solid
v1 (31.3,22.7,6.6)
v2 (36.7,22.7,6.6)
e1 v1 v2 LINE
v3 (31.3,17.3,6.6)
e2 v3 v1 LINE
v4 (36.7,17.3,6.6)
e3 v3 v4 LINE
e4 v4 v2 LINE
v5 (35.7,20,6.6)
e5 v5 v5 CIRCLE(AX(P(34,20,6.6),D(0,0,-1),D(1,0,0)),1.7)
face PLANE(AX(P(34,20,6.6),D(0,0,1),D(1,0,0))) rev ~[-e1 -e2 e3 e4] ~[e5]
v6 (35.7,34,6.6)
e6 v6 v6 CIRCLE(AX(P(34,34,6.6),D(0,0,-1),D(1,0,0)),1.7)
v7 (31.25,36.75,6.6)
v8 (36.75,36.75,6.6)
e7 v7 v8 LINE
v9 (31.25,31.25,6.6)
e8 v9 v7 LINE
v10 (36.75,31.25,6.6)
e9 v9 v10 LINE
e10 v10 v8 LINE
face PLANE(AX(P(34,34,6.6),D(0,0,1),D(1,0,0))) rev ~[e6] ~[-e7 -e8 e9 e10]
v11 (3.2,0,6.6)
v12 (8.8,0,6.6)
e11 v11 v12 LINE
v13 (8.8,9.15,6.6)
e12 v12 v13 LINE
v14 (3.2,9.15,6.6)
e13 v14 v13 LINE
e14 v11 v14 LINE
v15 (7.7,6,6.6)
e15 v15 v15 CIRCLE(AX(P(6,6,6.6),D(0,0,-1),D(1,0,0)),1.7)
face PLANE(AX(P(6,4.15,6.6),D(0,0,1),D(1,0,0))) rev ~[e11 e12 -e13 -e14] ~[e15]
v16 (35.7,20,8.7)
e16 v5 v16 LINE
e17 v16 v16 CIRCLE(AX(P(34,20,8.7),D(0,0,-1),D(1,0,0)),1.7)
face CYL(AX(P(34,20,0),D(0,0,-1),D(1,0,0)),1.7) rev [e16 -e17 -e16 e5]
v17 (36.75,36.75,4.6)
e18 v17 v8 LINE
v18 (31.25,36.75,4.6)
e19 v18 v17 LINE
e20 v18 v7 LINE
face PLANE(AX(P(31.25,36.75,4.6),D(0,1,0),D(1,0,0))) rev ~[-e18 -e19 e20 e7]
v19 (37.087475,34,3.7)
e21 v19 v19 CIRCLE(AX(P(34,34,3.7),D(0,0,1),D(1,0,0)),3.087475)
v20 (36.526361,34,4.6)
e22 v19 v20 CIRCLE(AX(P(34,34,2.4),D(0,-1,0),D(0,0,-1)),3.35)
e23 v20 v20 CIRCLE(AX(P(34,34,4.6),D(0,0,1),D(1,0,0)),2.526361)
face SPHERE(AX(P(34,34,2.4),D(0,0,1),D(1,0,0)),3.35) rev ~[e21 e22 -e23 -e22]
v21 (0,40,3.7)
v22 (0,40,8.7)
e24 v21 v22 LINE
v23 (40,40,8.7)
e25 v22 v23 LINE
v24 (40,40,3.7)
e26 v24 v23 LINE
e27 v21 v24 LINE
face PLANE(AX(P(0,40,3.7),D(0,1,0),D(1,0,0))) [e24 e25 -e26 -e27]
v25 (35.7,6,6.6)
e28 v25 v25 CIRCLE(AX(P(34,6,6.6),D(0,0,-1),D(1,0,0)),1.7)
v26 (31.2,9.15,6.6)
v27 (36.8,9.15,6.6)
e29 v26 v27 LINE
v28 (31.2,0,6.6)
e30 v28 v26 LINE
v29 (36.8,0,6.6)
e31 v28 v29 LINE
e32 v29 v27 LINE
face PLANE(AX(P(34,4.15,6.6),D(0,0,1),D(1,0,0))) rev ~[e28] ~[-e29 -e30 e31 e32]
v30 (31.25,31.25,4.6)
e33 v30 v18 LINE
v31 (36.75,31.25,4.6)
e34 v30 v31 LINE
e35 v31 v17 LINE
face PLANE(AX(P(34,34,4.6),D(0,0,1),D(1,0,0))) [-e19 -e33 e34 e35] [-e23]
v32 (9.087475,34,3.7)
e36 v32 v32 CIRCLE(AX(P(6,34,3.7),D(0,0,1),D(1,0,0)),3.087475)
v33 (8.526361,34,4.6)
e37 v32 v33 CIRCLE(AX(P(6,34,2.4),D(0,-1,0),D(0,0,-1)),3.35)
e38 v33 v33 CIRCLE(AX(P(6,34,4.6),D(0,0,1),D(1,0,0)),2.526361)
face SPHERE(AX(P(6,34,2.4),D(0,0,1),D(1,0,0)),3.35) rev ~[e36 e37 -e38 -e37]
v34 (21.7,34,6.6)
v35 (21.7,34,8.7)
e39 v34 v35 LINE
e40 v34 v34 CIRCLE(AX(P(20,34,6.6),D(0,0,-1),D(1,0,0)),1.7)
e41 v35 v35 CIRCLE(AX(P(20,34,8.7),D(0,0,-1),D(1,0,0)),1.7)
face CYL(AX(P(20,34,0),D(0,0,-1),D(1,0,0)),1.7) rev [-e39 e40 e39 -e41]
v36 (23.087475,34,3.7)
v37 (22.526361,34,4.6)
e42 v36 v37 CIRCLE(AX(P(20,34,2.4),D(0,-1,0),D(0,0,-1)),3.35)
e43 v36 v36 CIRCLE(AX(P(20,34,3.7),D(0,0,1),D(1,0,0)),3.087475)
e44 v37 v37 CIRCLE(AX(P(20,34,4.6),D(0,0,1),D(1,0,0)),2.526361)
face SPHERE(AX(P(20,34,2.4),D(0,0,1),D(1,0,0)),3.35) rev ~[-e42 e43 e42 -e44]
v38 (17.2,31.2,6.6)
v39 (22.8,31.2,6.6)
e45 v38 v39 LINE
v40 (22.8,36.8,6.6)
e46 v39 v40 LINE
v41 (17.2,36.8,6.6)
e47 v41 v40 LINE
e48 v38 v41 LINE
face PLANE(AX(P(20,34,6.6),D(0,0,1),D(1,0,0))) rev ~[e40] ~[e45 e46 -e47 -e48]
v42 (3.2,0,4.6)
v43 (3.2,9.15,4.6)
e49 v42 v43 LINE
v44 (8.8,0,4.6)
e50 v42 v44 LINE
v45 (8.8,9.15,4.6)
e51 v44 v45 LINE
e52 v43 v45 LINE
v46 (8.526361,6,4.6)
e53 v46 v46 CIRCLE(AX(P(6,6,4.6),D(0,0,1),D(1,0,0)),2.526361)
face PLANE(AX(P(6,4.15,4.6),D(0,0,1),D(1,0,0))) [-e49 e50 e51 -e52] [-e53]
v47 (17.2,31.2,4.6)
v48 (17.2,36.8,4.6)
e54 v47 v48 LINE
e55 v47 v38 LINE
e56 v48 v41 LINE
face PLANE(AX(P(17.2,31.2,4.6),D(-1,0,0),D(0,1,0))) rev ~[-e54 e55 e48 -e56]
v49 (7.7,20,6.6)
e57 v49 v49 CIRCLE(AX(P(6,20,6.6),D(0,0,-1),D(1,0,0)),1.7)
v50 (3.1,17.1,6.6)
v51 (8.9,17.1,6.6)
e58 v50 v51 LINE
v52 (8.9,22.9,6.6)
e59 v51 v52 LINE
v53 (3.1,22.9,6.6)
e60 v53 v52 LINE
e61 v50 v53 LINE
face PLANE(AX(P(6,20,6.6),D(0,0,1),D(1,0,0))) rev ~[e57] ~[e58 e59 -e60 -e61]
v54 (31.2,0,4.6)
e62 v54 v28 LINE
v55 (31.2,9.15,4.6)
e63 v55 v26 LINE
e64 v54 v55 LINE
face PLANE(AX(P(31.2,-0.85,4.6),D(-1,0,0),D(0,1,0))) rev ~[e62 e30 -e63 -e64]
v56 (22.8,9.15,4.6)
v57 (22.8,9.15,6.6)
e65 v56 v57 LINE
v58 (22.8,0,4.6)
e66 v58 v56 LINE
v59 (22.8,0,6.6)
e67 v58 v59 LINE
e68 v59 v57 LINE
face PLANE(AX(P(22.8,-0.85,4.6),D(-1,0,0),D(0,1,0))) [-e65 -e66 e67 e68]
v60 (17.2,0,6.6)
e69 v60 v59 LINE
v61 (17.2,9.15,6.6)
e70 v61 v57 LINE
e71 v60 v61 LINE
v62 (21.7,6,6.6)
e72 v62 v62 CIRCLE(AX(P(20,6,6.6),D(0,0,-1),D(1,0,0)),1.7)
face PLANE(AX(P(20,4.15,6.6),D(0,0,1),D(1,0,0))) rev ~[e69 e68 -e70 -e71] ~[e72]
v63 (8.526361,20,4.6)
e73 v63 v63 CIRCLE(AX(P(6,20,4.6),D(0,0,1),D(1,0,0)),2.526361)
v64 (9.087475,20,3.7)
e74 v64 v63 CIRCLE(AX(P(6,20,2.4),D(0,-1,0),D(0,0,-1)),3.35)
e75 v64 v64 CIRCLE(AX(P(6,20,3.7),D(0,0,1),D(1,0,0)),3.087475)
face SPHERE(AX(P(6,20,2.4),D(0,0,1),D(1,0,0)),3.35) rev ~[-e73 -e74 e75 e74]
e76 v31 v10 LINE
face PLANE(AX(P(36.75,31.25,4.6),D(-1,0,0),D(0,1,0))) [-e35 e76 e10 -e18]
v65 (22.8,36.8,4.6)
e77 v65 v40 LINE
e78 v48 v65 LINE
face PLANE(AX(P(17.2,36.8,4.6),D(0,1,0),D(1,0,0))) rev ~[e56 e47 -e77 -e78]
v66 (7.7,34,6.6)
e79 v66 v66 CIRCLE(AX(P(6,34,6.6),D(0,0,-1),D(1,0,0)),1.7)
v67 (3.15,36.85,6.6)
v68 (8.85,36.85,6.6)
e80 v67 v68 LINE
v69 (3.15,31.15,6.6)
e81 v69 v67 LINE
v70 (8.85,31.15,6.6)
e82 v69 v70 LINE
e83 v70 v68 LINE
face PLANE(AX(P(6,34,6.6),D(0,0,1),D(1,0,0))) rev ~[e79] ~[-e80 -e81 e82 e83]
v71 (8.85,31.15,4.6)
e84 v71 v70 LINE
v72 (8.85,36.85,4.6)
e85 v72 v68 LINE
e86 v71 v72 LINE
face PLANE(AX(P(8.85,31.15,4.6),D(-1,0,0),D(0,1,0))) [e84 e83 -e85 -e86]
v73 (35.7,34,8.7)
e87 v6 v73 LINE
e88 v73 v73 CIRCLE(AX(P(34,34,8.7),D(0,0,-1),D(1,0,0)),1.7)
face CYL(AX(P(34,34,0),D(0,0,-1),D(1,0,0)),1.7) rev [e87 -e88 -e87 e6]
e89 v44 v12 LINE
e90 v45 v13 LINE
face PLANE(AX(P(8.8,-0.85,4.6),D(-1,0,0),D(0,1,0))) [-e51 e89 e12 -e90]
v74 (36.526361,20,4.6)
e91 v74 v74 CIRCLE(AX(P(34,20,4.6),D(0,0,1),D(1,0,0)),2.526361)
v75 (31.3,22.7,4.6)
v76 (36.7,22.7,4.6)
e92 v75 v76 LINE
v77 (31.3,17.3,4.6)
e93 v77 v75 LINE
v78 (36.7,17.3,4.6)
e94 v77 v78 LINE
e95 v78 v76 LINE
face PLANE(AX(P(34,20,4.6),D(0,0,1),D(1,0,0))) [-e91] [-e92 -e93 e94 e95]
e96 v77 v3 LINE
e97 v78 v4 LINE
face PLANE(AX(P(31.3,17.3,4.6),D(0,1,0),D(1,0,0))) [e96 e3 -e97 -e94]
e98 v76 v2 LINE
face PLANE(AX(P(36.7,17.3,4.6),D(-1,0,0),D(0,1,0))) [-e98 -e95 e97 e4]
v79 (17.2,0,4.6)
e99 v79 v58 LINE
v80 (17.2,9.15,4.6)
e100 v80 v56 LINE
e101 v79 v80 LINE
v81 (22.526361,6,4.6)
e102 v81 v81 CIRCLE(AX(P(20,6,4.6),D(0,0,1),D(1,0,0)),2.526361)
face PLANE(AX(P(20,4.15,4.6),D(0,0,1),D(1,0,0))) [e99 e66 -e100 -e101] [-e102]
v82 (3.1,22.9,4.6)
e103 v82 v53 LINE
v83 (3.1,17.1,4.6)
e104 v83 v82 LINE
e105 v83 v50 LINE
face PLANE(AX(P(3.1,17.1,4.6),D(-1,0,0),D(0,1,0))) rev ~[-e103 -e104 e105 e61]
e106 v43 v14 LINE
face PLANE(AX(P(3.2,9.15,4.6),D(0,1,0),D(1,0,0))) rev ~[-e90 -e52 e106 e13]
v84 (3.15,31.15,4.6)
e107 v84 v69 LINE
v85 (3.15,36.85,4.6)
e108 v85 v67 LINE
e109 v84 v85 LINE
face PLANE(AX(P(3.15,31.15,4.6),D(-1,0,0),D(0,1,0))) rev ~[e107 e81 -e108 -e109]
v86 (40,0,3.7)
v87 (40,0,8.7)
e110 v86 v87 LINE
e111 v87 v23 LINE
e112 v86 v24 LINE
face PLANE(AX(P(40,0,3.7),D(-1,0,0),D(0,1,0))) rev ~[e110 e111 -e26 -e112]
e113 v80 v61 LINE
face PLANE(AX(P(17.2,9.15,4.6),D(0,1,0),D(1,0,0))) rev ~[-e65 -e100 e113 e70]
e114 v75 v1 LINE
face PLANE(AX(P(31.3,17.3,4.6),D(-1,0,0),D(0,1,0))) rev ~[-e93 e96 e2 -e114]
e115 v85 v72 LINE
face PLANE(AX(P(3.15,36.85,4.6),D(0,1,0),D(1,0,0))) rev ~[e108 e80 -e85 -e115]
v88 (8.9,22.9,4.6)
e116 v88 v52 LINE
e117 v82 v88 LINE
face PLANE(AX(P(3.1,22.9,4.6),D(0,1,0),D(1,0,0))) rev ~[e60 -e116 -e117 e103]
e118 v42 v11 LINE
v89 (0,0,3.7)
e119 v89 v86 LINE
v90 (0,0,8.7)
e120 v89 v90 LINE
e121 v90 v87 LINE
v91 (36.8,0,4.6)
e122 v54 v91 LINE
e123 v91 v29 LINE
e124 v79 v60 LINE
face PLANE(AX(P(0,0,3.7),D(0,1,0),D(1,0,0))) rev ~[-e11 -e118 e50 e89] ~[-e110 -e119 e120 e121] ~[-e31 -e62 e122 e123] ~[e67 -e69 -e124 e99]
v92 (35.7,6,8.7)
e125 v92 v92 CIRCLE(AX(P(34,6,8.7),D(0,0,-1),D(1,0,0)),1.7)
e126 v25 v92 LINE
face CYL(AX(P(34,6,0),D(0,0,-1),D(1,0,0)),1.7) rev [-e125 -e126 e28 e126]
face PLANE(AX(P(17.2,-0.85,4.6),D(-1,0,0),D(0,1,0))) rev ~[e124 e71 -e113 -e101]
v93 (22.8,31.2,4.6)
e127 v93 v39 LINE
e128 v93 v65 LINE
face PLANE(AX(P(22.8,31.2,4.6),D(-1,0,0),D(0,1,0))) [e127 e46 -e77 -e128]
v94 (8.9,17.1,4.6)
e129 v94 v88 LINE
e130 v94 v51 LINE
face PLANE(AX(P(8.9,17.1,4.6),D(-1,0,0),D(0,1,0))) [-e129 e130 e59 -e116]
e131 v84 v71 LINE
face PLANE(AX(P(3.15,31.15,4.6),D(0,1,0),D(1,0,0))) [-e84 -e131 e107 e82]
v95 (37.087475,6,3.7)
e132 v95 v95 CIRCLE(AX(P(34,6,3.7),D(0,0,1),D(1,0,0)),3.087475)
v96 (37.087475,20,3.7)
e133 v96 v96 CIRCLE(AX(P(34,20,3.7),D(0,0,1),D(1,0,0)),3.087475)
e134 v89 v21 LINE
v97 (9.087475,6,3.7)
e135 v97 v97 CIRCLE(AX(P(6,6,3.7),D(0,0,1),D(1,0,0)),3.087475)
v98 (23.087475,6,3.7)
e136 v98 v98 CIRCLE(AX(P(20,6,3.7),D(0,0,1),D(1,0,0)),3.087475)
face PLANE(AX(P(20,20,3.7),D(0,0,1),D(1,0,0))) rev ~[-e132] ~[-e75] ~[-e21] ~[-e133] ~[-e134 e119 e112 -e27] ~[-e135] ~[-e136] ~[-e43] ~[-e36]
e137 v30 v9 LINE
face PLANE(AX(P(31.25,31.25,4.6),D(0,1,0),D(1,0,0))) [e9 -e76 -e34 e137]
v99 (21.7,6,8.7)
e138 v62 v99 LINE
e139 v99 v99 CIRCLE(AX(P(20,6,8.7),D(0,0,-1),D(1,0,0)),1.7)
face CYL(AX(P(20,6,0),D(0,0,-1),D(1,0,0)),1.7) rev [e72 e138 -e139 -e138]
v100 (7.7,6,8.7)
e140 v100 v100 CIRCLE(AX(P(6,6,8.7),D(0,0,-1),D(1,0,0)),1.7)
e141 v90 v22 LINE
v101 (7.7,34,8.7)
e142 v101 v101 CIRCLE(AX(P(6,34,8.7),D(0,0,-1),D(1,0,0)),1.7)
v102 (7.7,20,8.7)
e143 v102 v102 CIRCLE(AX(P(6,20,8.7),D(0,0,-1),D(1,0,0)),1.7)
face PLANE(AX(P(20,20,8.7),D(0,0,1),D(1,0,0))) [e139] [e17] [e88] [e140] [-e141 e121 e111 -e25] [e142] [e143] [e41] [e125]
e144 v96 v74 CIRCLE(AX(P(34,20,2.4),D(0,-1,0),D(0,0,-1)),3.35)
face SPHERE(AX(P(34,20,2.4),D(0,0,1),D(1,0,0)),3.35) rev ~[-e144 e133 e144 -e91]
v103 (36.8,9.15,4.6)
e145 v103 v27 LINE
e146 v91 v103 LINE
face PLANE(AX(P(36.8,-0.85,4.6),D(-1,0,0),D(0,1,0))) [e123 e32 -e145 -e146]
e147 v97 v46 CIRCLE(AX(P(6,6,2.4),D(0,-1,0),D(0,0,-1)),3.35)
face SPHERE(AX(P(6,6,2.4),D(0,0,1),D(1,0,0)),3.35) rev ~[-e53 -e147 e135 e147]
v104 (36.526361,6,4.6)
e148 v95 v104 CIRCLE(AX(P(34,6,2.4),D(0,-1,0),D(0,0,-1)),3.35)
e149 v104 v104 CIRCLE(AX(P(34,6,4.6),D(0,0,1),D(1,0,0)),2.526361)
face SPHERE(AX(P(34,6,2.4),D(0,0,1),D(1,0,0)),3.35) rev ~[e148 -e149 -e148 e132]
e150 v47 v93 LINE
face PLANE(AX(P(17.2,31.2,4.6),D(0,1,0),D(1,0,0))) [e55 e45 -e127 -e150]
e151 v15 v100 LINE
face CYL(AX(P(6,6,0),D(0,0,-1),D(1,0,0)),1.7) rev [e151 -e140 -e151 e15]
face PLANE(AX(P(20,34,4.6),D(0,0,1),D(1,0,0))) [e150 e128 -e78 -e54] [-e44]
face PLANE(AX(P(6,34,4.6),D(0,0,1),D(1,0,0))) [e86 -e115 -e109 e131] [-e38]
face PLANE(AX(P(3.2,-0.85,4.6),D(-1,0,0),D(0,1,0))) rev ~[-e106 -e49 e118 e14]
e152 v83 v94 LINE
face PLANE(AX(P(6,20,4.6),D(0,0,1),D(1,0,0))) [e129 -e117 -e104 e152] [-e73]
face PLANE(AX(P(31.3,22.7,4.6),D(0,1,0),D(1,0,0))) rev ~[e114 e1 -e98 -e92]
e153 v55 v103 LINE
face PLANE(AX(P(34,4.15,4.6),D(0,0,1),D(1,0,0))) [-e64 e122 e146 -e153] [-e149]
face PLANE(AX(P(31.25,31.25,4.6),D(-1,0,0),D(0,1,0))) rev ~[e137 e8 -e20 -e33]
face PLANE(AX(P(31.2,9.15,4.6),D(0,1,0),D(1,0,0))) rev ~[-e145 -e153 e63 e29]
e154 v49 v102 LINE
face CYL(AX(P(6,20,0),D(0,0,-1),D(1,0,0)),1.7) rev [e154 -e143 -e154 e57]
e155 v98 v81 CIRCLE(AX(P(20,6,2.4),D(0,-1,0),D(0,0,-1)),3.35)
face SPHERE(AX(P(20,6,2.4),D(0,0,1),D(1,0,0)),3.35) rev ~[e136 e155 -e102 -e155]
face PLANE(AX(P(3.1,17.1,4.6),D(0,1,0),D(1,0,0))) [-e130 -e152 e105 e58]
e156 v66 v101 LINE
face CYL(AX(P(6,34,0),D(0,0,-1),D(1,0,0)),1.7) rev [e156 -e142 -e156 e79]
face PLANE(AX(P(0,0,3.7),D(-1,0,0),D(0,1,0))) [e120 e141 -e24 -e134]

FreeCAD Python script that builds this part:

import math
import FreeCAD as App
import Part
import Sketcher
from FreeCAD import Vector
Q = App.Units.Quantity


def add_polygon(sketch, points):
    """Adds a closed chain of lines whose ends are joined by coincident constraints."""
    first, n = sketch.GeometryCount, len(points)
    for a, b in zip(points, points[1:] + points[:1]):
        sketch.addGeometry(Part.LineSegment(App.Vector(*a, 0), App.Vector(*b, 0)), False)
    for i in range(n):
        sketch.addConstraint(Sketcher.Constraint("Coincident", first + i, 2, first + (i + 1) % n, 1))

doc = App.newDocument("Part")
params = doc.addObject("Spreadsheet::Sheet", "Params")
for row, (alias, value) in enumerate([
    ("sketch1_diameter", "3.4 mm"),
    ("pad1_length", "10 mm"),
    ("sketch2_diameter", "3.4 mm"),
    ("pad2_length", "10 mm"),
    ("sketch3_diameter", "3.4 mm"),
    ("pad3_length", "10 mm"),
    ("sketch4_diameter", "3.4 mm"),
    ("pad4_length", "10 mm"),
    ("sketch5_diameter", "3.4 mm"),
    ("pad5_length", "10 mm"),
    ("sketch6_diameter", "3.4 mm"),
    ("pad6_length", "10 mm"),
    ("sketch7_diameter", "3.4 mm"),
    ("pad7_length", "10 mm"),
    ("sketch8_diameter", "3.4 mm"),
    ("pad8_length", "10 mm"),
    ("sketch9_radius", "3.35 mm"),
    ("revolution_angle", "360 deg"),
    ("sketch10_radius", "3.35 mm"),
    ("revolution2_angle", "360 deg"),
    ("sketch11_radius", "3.35 mm"),
    ("revolution3_angle", "360 deg"),
    ("sketch12_radius", "3.35 mm"),
    ("revolution4_angle", "360 deg"),
    ("sketch13_radius", "3.35 mm"),
    ("revolution5_angle", "360 deg"),
    ("sketch14_radius", "3.35 mm"),
    ("revolution6_angle", "360 deg"),
    ("sketch15_radius", "3.35 mm"),
    ("revolution7_angle", "360 deg"),
    ("sketch16_radius", "3.35 mm"),
    ("revolution8_angle", "360 deg"),
    ("sketch17_width", "5.8 mm"),
    ("pad9_length", "2 mm"),
    ("sketch18_width", "5.4 mm"),
    ("pad10_length", "2 mm"),
    ("sketch19_width", "5.7 mm"),
    ("pad11_length", "2 mm"),
    ("sketch20_width", "5.5 mm"),
    ("pad12_length", "2 mm"),
    ("sketch21_height", "10 mm"),
    ("sketch21_width", "5.6 mm"),
    ("pad13_length", "2 mm"),
    ("sketch22_width", "5.6 mm"),
    ("pad14_length", "2 mm"),
    ("sketch23_height", "10 mm"),
    ("sketch23_width", "5.6 mm"),
    ("pad15_length", "2 mm"),
    ("sketch24_height", "10 mm"),
    ("sketch24_width", "5.6 mm"),
    ("pad16_length", "2 mm"),
    ("sketch25_width", "40 mm"),
    ("pad17_length", "5 mm"),
], start=1):
    params.set(f"A{row}", alias)
    params.set(f"B{row}", "=" + value)
    params.setAlias(f"B{row}", alias)

body = doc.addObject("PartDesign::Body", "Body")

sketch1 = doc.addObject("Sketcher::SketchObject", "Sketch")
body.addObject(sketch1)
sketch1.AttachmentSupport = (doc.XY_Plane, [""])
sketch1.MapMode = "FlatFace"
sketch1.addGeometry(Part.Circle(Vector(20, 34, 0), Vector(0, 0, 1), 1.7), False)
sketch1.addConstraint([
    Sketcher.Constraint("Diameter", 0, Q("3.4 mm")),
    Sketcher.Constraint("DistanceX", -1, 1, 0, 3, Q("20 mm")),
    Sketcher.Constraint("DistanceY", -1, 1, 0, 3, Q("34 mm")),
])
sketch1.setExpression("Constraints[0]", "Params.sketch1_diameter")
pad1 = doc.addObject("PartDesign::Pad", "Pad")
body.addObject(pad1)
pad1.Profile = sketch1
pad1.setExpression("Length", "Params.pad1_length")
body2 = doc.addObject("PartDesign::Body", "Body001")

sketch2 = doc.addObject("Sketcher::SketchObject", "Sketch001")
body2.addObject(sketch2)
sketch2.AttachmentSupport = (doc.getObject("XY_Plane001"), [""])
sketch2.MapMode = "FlatFace"
sketch2.addGeometry(Part.Circle(Vector(34, 20, 0), Vector(0, 0, 1), 1.7), False)
sketch2.addConstraint([
    Sketcher.Constraint("Diameter", 0, Q("3.4 mm")),
    Sketcher.Constraint("DistanceX", -1, 1, 0, 3, Q("34 mm")),
    Sketcher.Constraint("DistanceY", -1, 1, 0, 3, Q("20 mm")),
])
sketch2.setExpression("Constraints[0]", "Params.sketch2_diameter")
pad2 = doc.addObject("PartDesign::Pad", "Pad001")
body2.addObject(pad2)
pad2.Profile = sketch2
pad2.setExpression("Length", "Params.pad2_length")
body3 = doc.addObject("PartDesign::Body", "Body002")

sketch3 = doc.addObject("Sketcher::SketchObject", "Sketch002")
body3.addObject(sketch3)
sketch3.AttachmentSupport = (doc.getObject("XY_Plane002"), [""])
sketch3.MapMode = "FlatFace"
sketch3.addGeometry(Part.Circle(Vector(6, 34, 0), Vector(0, 0, 1), 1.7), False)
sketch3.addConstraint([
    Sketcher.Constraint("Diameter", 0, Q("3.4 mm")),
    Sketcher.Constraint("DistanceX", -1, 1, 0, 3, Q("6 mm")),
    Sketcher.Constraint("DistanceY", -1, 1, 0, 3, Q("34 mm")),
])
sketch3.setExpression("Constraints[0]", "Params.sketch3_diameter")
pad3 = doc.addObject("PartDesign::Pad", "Pad002")
body3.addObject(pad3)
pad3.Profile = sketch3
pad3.setExpression("Length", "Params.pad3_length")
body4 = doc.addObject("PartDesign::Body", "Body003")

sketch4 = doc.addObject("Sketcher::SketchObject", "Sketch003")
body4.addObject(sketch4)
sketch4.AttachmentSupport = (doc.getObject("XY_Plane003"), [""])
sketch4.MapMode = "FlatFace"
sketch4.addGeometry(Part.Circle(Vector(6, 20, 0), Vector(0, 0, 1), 1.7), False)
sketch4.addConstraint([
    Sketcher.Constraint("Diameter", 0, Q("3.4 mm")),
    Sketcher.Constraint("DistanceX", -1, 1, 0, 3, Q("6 mm")),
    Sketcher.Constraint("DistanceY", -1, 1, 0, 3, Q("20 mm")),
])
sketch4.setExpression("Constraints[0]", "Params.sketch4_diameter")
pad4 = doc.addObject("PartDesign::Pad", "Pad003")
body4.addObject(pad4)
pad4.Profile = sketch4
pad4.setExpression("Length", "Params.pad4_length")
body5 = doc.addObject("PartDesign::Body", "Body004")

sketch5 = doc.addObject("Sketcher::SketchObject", "Sketch004")
body5.addObject(sketch5)
sketch5.AttachmentSupport = (doc.getObject("XY_Plane004"), [""])
sketch5.MapMode = "FlatFace"
sketch5.addGeometry(Part.Circle(Vector(20, 6, 0), Vector(0, 0, 1), 1.7), False)
sketch5.addConstraint([
    Sketcher.Constraint("Diameter", 0, Q("3.4 mm")),
    Sketcher.Constraint("DistanceX", -1, 1, 0, 3, Q("20 mm")),
    Sketcher.Constraint("DistanceY", -1, 1, 0, 3, Q("6 mm")),
])
sketch5.setExpression("Constraints[0]", "Params.sketch5_diameter")
pad5 = doc.addObject("PartDesign::Pad", "Pad004")
body5.addObject(pad5)
pad5.Profile = sketch5
pad5.setExpression("Length", "Params.pad5_length")
body6 = doc.addObject("PartDesign::Body", "Body005")

sketch6 = doc.addObject("Sketcher::SketchObject", "Sketch005")
body6.addObject(sketch6)
sketch6.AttachmentSupport = (doc.getObject("XY_Plane005"), [""])
sketch6.MapMode = "FlatFace"
sketch6.addGeometry(Part.Circle(Vector(34, 6, 0), Vector(0, 0, 1), 1.7), False)
sketch6.addConstraint([
    Sketcher.Constraint("Diameter", 0, Q("3.4 mm")),
    Sketcher.Constraint("DistanceX", -1, 1, 0, 3, Q("34 mm")),
    Sketcher.Constraint("DistanceY", -1, 1, 0, 3, Q("6 mm")),
])
sketch6.setExpression("Constraints[0]", "Params.sketch6_diameter")
pad6 = doc.addObject("PartDesign::Pad", "Pad005")
body6.addObject(pad6)
pad6.Profile = sketch6
pad6.setExpression("Length", "Params.pad6_length")
body7 = doc.addObject("PartDesign::Body", "Body006")

sketch7 = doc.addObject("Sketcher::SketchObject", "Sketch006")
body7.addObject(sketch7)
sketch7.AttachmentSupport = (doc.getObject("XY_Plane006"), [""])
sketch7.MapMode = "FlatFace"
sketch7.addGeometry(Part.Circle(Vector(34, 34, 0), Vector(0, 0, 1), 1.7), False)
sketch7.addConstraint([
    Sketcher.Constraint("Diameter", 0, Q("3.4 mm")),
    Sketcher.Constraint("DistanceX", -1, 1, 0, 3, Q("34 mm")),
    Sketcher.Constraint("DistanceY", -1, 1, 0, 3, Q("34 mm")),
])
sketch7.setExpression("Constraints[0]", "Params.sketch7_diameter")
pad7 = doc.addObject("PartDesign::Pad", "Pad006")
body7.addObject(pad7)
pad7.Profile = sketch7
pad7.setExpression("Length", "Params.pad7_length")
body8 = doc.addObject("PartDesign::Body", "Body007")
body8.AllowCompound = True

sketch8 = doc.addObject("Sketcher::SketchObject", "Sketch007")
body8.addObject(sketch8)
sketch8.AttachmentSupport = (doc.getObject("XY_Plane007"), [""])
sketch8.MapMode = "FlatFace"
sketch8.addGeometry(Part.Circle(Vector(6, 6, 0), Vector(0, 0, 1), 1.7), False)
sketch8.addConstraint([
    Sketcher.Constraint("Diameter", 0, Q("3.4 mm")),
    Sketcher.Constraint("DistanceX", -1, 1, 0, 3, Q("6 mm")),
    Sketcher.Constraint("DistanceY", -1, 1, 0, 3, Q("6 mm")),
])
sketch8.setExpression("Constraints[0]", "Params.sketch8_diameter")
pad8 = doc.addObject("PartDesign::Pad", "Pad007")
body8.addObject(pad8)
pad8.Profile = sketch8
pad8.setExpression("Length", "Params.pad8_length")
doc.recompute()

boolean = doc.addObject("PartDesign::Boolean", "Boolean")
body8.addObject(boolean)
boolean.Type = "Fuse"
boolean.addObjects([body])
doc.recompute()

boolean2 = doc.addObject("PartDesign::Boolean", "Boolean001")
body8.addObject(boolean2)
boolean2.Type = "Fuse"
boolean2.addObjects([body2])
doc.recompute()

boolean3 = doc.addObject("PartDesign::Boolean", "Boolean002")
body8.addObject(boolean3)
boolean3.Type = "Fuse"
boolean3.addObjects([body3])
doc.recompute()

boolean4 = doc.addObject("PartDesign::Boolean", "Boolean003")
body8.addObject(boolean4)
boolean4.Type = "Fuse"
boolean4.addObjects([body4])
doc.recompute()

boolean5 = doc.addObject("PartDesign::Boolean", "Boolean004")
body8.addObject(boolean5)
boolean5.Type = "Fuse"
boolean5.addObjects([body5])
doc.recompute()

boolean6 = doc.addObject("PartDesign::Boolean", "Boolean005")
body8.addObject(boolean6)
boolean6.Type = "Fuse"
boolean6.addObjects([body6])
doc.recompute()

boolean7 = doc.addObject("PartDesign::Boolean", "Boolean006")
body8.addObject(boolean7)
boolean7.Type = "Fuse"
boolean7.addObjects([body7])
body9 = doc.addObject("PartDesign::Body", "Body008")

sketch9 = doc.addObject("Sketcher::SketchObject", "Sketch008")
body9.addObject(sketch9)
sketch9.AttachmentSupport = (doc.getObject("XZ_Plane008"), [""])
sketch9.MapMode = "FlatFace"
sketch9.AttachmentOffset = App.Placement(Vector(0, 0, -34), App.Rotation())
sketch9.addGeometry([
    Part.ArcOfCircle(Part.Circle(Vector(6, 2.4, 0), Vector(0, 0, 1), 3.4), math.radians(-90), math.radians(90)),
    Part.LineSegment(Vector(6, 5.8, 0), Vector(6, -0.9, 0)),
], False)
sketch9.addGeometry(Part.LineSegment(Vector(6, -0.9, 0), Vector(6, 5.8, 0)), True)
sketch9.addConstraint([
    Sketcher.Constraint("Coincident", 0, 1, 1, 2),
    Sketcher.Constraint("Coincident", 1, 1, 0, 2),
    Sketcher.Constraint("Vertical", 1),
    Sketcher.Constraint("Vertical", 2),
    Sketcher.Constraint("Coincident", 2, 1, 0, 1),
    Sketcher.Constraint("Equal", 1, 2),
    Sketcher.Constraint("Radius", 0, Q("3.35 mm")),
    Sketcher.Constraint("DistanceX", -1, 1, 0, 3, Q("6 mm")),
    Sketcher.Constraint("DistanceX", -1, 1, 0, 1, Q("6 mm")),
    Sketcher.Constraint("DistanceY", -1, 1, 0, 3, Q("2.4 mm")),
])
sketch9.setExpression("Constraints[6]", "Params.sketch9_radius")
revolution = doc.addObject("PartDesign::Revolution", "Revolution")
body9.addObject(revolution)
revolution.Profile = sketch9
revolution.ReferenceAxis = (sketch9, ["Axis0"])
revolution.setExpression("Angle", "Params.revolution_angle")
body10 = doc.addObject("PartDesign::Body", "Body009")

sketch10 = doc.addObject("Sketcher::SketchObject", "Sketch009")
body10.addObject(sketch10)
sketch10.AttachmentSupport = (doc.getObject("XZ_Plane009"), [""])
sketch10.MapMode = "FlatFace"
sketch10.AttachmentOffset = App.Placement(Vector(0, 0, -6), App.Rotation())
sketch10.addGeometry([
    Part.ArcOfCircle(Part.Circle(Vector(6, 2.4, 0), Vector(0, 0, 1), 3.4), math.radians(-90), math.radians(90)),
    Part.LineSegment(Vector(6, 5.8, 0), Vector(6, -0.9, 0)),
], False)
sketch10.addGeometry(Part.LineSegment(Vector(6, -0.9, 0), Vector(6, 5.8, 0)), True)
sketch10.addConstraint([
    Sketcher.Constraint("Coincident", 0, 1, 1, 2),
    Sketcher.Constraint("Coincident", 1, 1, 0, 2),
    Sketcher.Constraint("Vertical", 1),
    Sketcher.Constraint("Vertical", 2),
    Sketcher.Constraint("Coincident", 2, 1, 0, 1),
    Sketcher.Constraint("Equal", 1, 2),
    Sketcher.Constraint("Radius", 0, Q("3.35 mm")),
    Sketcher.Constraint("DistanceX", -1, 1, 0, 3, Q("6 mm")),
    Sketcher.Constraint("DistanceX", -1, 1, 0, 1, Q("6 mm")),
    Sketcher.Constraint("DistanceY", -1, 1, 0, 3, Q("2.4 mm")),
])
sketch10.setExpression("Constraints[6]", "Params.sketch10_radius")
revolution2 = doc.addObject("PartDesign::Revolution", "Revolution001")
body10.addObject(revolution2)
revolution2.Profile = sketch10
revolution2.ReferenceAxis = (sketch10, ["Axis0"])
revolution2.setExpression("Angle", "Params.revolution2_angle")
body11 = doc.addObject("PartDesign::Body", "Body010")

sketch11 = doc.addObject("Sketcher::SketchObject", "Sketch010")
body11.addObject(sketch11)
sketch11.AttachmentSupport = (doc.getObject("XZ_Plane010"), [""])
sketch11.MapMode = "FlatFace"
sketch11.AttachmentOffset = App.Placement(Vector(0, 0, -6), App.Rotation())
sketch11.addGeometry([
    Part.ArcOfCircle(Part.Circle(Vector(20, 2.4, 0), Vector(0, 0, 1), 3.4), math.radians(-90), math.radians(90)),
    Part.LineSegment(Vector(20, 5.8, 0), Vector(20, -0.9, 0)),
], False)
sketch11.addGeometry(Part.LineSegment(Vector(20, -0.9, 0), Vector(20, 5.8, 0)), True)
sketch11.addConstraint([
    Sketcher.Constraint("Coincident", 0, 1, 1, 2),
    Sketcher.Constraint("Coincident", 1, 1, 0, 2),
    Sketcher.Constraint("Vertical", 1),
    Sketcher.Constraint("Vertical", 2),
    Sketcher.Constraint("Coincident", 2, 1, 0, 1),
    Sketcher.Constraint("Equal", 1, 2),
    Sketcher.Constraint("Radius", 0, Q("3.35 mm")),
    Sketcher.Constraint("DistanceX", -1, 1, 0, 3, Q("20 mm")),
    Sketcher.Constraint("DistanceX", -1, 1, 0, 1, Q("20 mm")),
    Sketcher.Constraint("DistanceY", -1, 1, 0, 3, Q("2.4 mm")),
])
sketch11.setExpression("Constraints[6]", "Params.sketch11_radius")
revolution3 = doc.addObject("PartDesign::Revolution", "Revolution002")
body11.addObject(revolution3)
revolution3.Profile = sketch11
revolution3.ReferenceAxis = (sketch11, ["Axis0"])
revolution3.setExpression("Angle", "Params.revolution3_angle")
body12 = doc.addObject("PartDesign::Body", "Body011")

sketch12 = doc.addObject("Sketcher::SketchObject", "Sketch011")
body12.addObject(sketch12)
sketch12.AttachmentSupport = (doc.getObject("XZ_Plane011"), [""])
sketch12.MapMode = "FlatFace"
sketch12.AttachmentOffset = App.Placement(Vector(0, 0, -6), App.Rotation())
sketch12.addGeometry([
    Part.ArcOfCircle(Part.Circle(Vector(34, 2.4, 0), Vector(0, 0, 1), 3.4), math.radians(-90), math.radians(90)),
    Part.LineSegment(Vector(34, 5.8, 0), Vector(34, -0.9, 0)),
], False)
sketch12.addGeometry(Part.LineSegment(Vector(34, -0.9, 0), Vector(34, 5.8, 0)), True)
sketch12.addConstraint([
    Sketcher.Constraint("Coincident", 0, 1, 1, 2),
    Sketcher.Constraint("Coincident", 1, 1, 0, 2),
    Sketcher.Constraint("Vertical", 1),
    Sketcher.Constraint("Vertical", 2),
    Sketcher.Constraint("Coincident", 2, 1, 0, 1),
    Sketcher.Constraint("Equal", 1, 2),
    Sketcher.Constraint("Radius", 0, Q("3.35 mm")),
    Sketcher.Constraint("DistanceX", -1, 1, 0, 3, Q("34 mm")),
    Sketcher.Constraint("DistanceX", -1, 1, 0, 1, Q("34 mm")),
    Sketcher.Constraint("DistanceY", -1, 1, 0, 3, Q("2.4 mm")),
])
sketch12.setExpression("Constraints[6]", "Params.sketch12_radius")
revolution4 = doc.addObject("PartDesign::Revolution", "Revolution003")
body12.addObject(revolution4)
revolution4.Profile = sketch12
revolution4.ReferenceAxis = (sketch12, ["Axis0"])
revolution4.setExpression("Angle", "Params.revolution4_angle")
body13 = doc.addObject("PartDesign::Body", "Body012")

sketch13 = doc.addObject("Sketcher::SketchObject", "Sketch012")
body13.addObject(sketch13)
sketch13.AttachmentSupport = (doc.getObject("XZ_Plane012"), [""])
sketch13.MapMode = "FlatFace"
sketch13.AttachmentOffset = App.Placement(Vector(0, 0, -34), App.Rotation())
sketch13.addGeometry([
    Part.ArcOfCircle(Part.Circle(Vector(20, 2.4, 0), Vector(0, 0, 1), 3.4), math.radians(-90), math.radians(90)),
    Part.LineSegment(Vector(20, 5.8, 0), Vector(20, -0.9, 0)),
], False)
sketch13.addGeometry(Part.LineSegment(Vector(20, -0.9, 0), Vector(20, 5.8, 0)), True)
sketch13.addConstraint([
    Sketcher.Constraint("Coincident", 0, 1, 1, 2),
    Sketcher.Constraint("Coincident", 1, 1, 0, 2),
    Sketcher.Constraint("Vertical", 1),
    Sketcher.Constraint("Vertical", 2),
    Sketcher.Constraint("Coincident", 2, 1, 0, 1),
    Sketcher.Constraint("Equal", 1, 2),
    Sketcher.Constraint("Radius", 0, Q("3.35 mm")),
    Sketcher.Constraint("DistanceX", -1, 1, 0, 3, Q("20 mm")),
    Sketcher.Constraint("DistanceX", -1, 1, 0, 1, Q("20 mm")),
    Sketcher.Constraint("DistanceY", -1, 1, 0, 3, Q("2.4 mm")),
])
sketch13.setExpression("Constraints[6]", "Params.sketch13_radius")
revolution5 = doc.addObject("PartDesign::Revolution", "Revolution004")
body13.addObject(revolution5)
revolution5.Profile = sketch13
revolution5.ReferenceAxis = (sketch13, ["Axis0"])
revolution5.setExpression("Angle", "Params.revolution5_angle")
body14 = doc.addObject("PartDesign::Body", "Body013")

sketch14 = doc.addObject("Sketcher::SketchObject", "Sketch013")
body14.addObject(sketch14)
sketch14.AttachmentSupport = (doc.getObject("XZ_Plane013"), [""])
sketch14.MapMode = "FlatFace"
sketch14.AttachmentOffset = App.Placement(Vector(0, 0, -20), App.Rotation())
sketch14.addGeometry([
    Part.ArcOfCircle(Part.Circle(Vector(6, 2.4, 0), Vector(0, 0, 1), 3.4), math.radians(-90), math.radians(90)),
    Part.LineSegment(Vector(6, 5.8, 0), Vector(6, -0.9, 0)),
], False)
sketch14.addGeometry(Part.LineSegment(Vector(6, -0.9, 0), Vector(6, 5.8, 0)), True)
sketch14.addConstraint([
    Sketcher.Constraint("Coincident", 0, 1, 1, 2),
    Sketcher.Constraint("Coincident", 1, 1, 0, 2),
    Sketcher.Constraint("Vertical", 1),
    Sketcher.Constraint("Vertical", 2),
    Sketcher.Constraint("Coincident", 2, 1, 0, 1),
    Sketcher.Constraint("Equal", 1, 2),
    Sketcher.Constraint("Radius", 0, Q("3.35 mm")),
    Sketcher.Constraint("DistanceX", -1, 1, 0, 3, Q("6 mm")),
    Sketcher.Constraint("DistanceX", -1, 1, 0, 1, Q("6 mm")),
    Sketcher.Constraint("DistanceY", -1, 1, 0, 3, Q("2.4 mm")),
])
sketch14.setExpression("Constraints[6]", "Params.sketch14_radius")
revolution6 = doc.addObject("PartDesign::Revolution", "Revolution005")
body14.addObject(revolution6)
revolution6.Profile = sketch14
revolution6.ReferenceAxis = (sketch14, ["Axis0"])
revolution6.setExpression("Angle", "Params.revolution6_angle")
body15 = doc.addObject("PartDesign::Body", "Body014")

sketch15 = doc.addObject("Sketcher::SketchObject", "Sketch014")
body15.addObject(sketch15)
sketch15.AttachmentSupport = (doc.getObject("XZ_Plane014"), [""])
sketch15.MapMode = "FlatFace"
sketch15.AttachmentOffset = App.Placement(Vector(0, 0, -34), App.Rotation())
sketch15.addGeometry([
    Part.ArcOfCircle(Part.Circle(Vector(34, 2.4, 0), Vector(0, 0, 1), 3.4), math.radians(-90), math.radians(90)),
    Part.LineSegment(Vector(34, 5.8, 0), Vector(34, -0.9, 0)),
], False)
sketch15.addGeometry(Part.LineSegment(Vector(34, -0.9, 0), Vector(34, 5.8, 0)), True)
sketch15.addConstraint([
    Sketcher.Constraint("Coincident", 0, 1, 1, 2),
    Sketcher.Constraint("Coincident", 1, 1, 0, 2),
    Sketcher.Constraint("Vertical", 1),
    Sketcher.Constraint("Vertical", 2),
    Sketcher.Constraint("Coincident", 2, 1, 0, 1),
    Sketcher.Constraint("Equal", 1, 2),
    Sketcher.Constraint("Radius", 0, Q("3.35 mm")),
    Sketcher.Constraint("DistanceX", -1, 1, 0, 3, Q("34 mm")),
    Sketcher.Constraint("DistanceX", -1, 1, 0, 1, Q("34 mm")),
    Sketcher.Constraint("DistanceY", -1, 1, 0, 3, Q("2.4 mm")),
])
sketch15.setExpression("Constraints[6]", "Params.sketch15_radius")
revolution7 = doc.addObject("PartDesign::Revolution", "Revolution006")
body15.addObject(revolution7)
revolution7.Profile = sketch15
revolution7.ReferenceAxis = (sketch15, ["Axis0"])
revolution7.setExpression("Angle", "Params.revolution7_angle")
body16 = doc.addObject("PartDesign::Body", "Body015")
body16.AllowCompound = True

sketch16 = doc.addObject("Sketcher::SketchObject", "Sketch015")
body16.addObject(sketch16)
sketch16.AttachmentSupport = (doc.getObject("XZ_Plane015"), [""])
sketch16.MapMode = "FlatFace"
sketch16.AttachmentOffset = App.Placement(Vector(0, 0, -20), App.Rotation())
sketch16.addGeometry([
    Part.ArcOfCircle(Part.Circle(Vector(34, 2.4, 0), Vector(0, 0, 1), 3.4), math.radians(-90), math.radians(90)),
    Part.LineSegment(Vector(34, 5.8, 0), Vector(34, -0.9, 0)),
], False)
sketch16.addGeometry(Part.LineSegment(Vector(34, -0.9, 0), Vector(34, 5.8, 0)), True)
sketch16.addConstraint([
    Sketcher.Constraint("Coincident", 0, 1, 1, 2),
    Sketcher.Constraint("Coincident", 1, 1, 0, 2),
    Sketcher.Constraint("Vertical", 1),
    Sketcher.Constraint("Vertical", 2),
    Sketcher.Constraint("Coincident", 2, 1, 0, 1),
    Sketcher.Constraint("Equal", 1, 2),
    Sketcher.Constraint("Radius", 0, Q("3.35 mm")),
    Sketcher.Constraint("DistanceX", -1, 1, 0, 3, Q("34 mm")),
    Sketcher.Constraint("DistanceX", -1, 1, 0, 1, Q("34 mm")),
    Sketcher.Constraint("DistanceY", -1, 1, 0, 3, Q("2.4 mm")),
])
sketch16.setExpression("Constraints[6]", "Params.sketch16_radius")
revolution8 = doc.addObject("PartDesign::Revolution", "Revolution007")
body16.addObject(revolution8)
revolution8.Profile = sketch16
revolution8.ReferenceAxis = (sketch16, ["Axis0"])
revolution8.setExpression("Angle", "Params.revolution8_angle")
doc.recompute()

boolean8 = doc.addObject("PartDesign::Boolean", "Boolean007")
body16.addObject(boolean8)
boolean8.Type = "Fuse"
boolean8.addObjects([body9])
doc.recompute()

boolean9 = doc.addObject("PartDesign::Boolean", "Boolean008")
body16.addObject(boolean9)
boolean9.Type = "Fuse"
boolean9.addObjects([body10])
doc.recompute()

boolean10 = doc.addObject("PartDesign::Boolean", "Boolean009")
body16.addObject(boolean10)
boolean10.Type = "Fuse"
boolean10.addObjects([body11])
doc.recompute()

boolean11 = doc.addObject("PartDesign::Boolean", "Boolean010")
body16.addObject(boolean11)
boolean11.Type = "Fuse"
boolean11.addObjects([body12])
doc.recompute()

boolean12 = doc.addObject("PartDesign::Boolean", "Boolean011")
body16.addObject(boolean12)
boolean12.Type = "Fuse"
boolean12.addObjects([body13])
doc.recompute()

boolean13 = doc.addObject("PartDesign::Boolean", "Boolean012")
body16.addObject(boolean13)
boolean13.Type = "Fuse"
boolean13.addObjects([body14])
doc.recompute()

boolean14 = doc.addObject("PartDesign::Boolean", "Boolean013")
body16.addObject(boolean14)
boolean14.Type = "Fuse"
boolean14.addObjects([body15])
body17 = doc.addObject("PartDesign::Body", "Body016")

sketch17 = doc.addObject("Sketcher::SketchObject", "Sketch016")
body17.addObject(sketch17)
sketch17.AttachmentSupport = (doc.getObject("XY_Plane016"), [""])
sketch17.MapMode = "FlatFace"
sketch17.AttachmentOffset = App.Placement(Vector(0, 0, 4.6), App.Rotation())
add_polygon(sketch17, [(3, 23), (3, 17), (9, 17), (9, 23)])
sketch17.addConstraint([
    Sketcher.Constraint("Vertical", 0),
    Sketcher.Constraint("Horizontal", 1),
    Sketcher.Constraint("Vertical", 2),
    Sketcher.Constraint("Horizontal", 3),
    Sketcher.Constraint("Equal", 3, 0),
    Sketcher.Constraint("DistanceX", 1, 1, 1, 2, Q("5.8 mm")),
    Sketcher.Constraint("DistanceX", -1, 1, 0, 2, Q("3.1 mm")),
    Sketcher.Constraint("DistanceY", -1, 1, 0, 2, Q("17.1 mm")),
])
sketch17.setExpression("Constraints[9]", "Params.sketch17_width")
pad9 = doc.addObject("PartDesign::Pad", "Pad008")
body17.addObject(pad9)
pad9.Profile = sketch17
pad9.setExpression("Length", "Params.pad9_length")
body18 = doc.addObject("PartDesign::Body", "Body017")

sketch18 = doc.addObject("Sketcher::SketchObject", "Sketch017")
body18.addObject(sketch18)
sketch18.AttachmentSupport = (doc.getObject("XY_Plane017"), [""])
sketch18.MapMode = "FlatFace"
sketch18.AttachmentOffset = App.Placement(Vector(0, 0, 4.6), App.Rotation())
add_polygon(sketch18, [(31, 23), (31, 17), (37, 17), (37, 23)])
sketch18.addConstraint([
    Sketcher.Constraint("Vertical", 0),
    Sketcher.Constraint("Horizontal", 1),
    Sketcher.Constraint("Vertical", 2),
    Sketcher.Constraint("Horizontal", 3),
    Sketcher.Constraint("Equal", 3, 0),
    Sketcher.Constraint("DistanceX", 1, 1, 1, 2, Q("5.4 mm")),
    Sketcher.Constraint("DistanceX", -1, 1, 0, 2, Q("31.3 mm")),
    Sketcher.Constraint("DistanceY", -1, 1, 0, 2, Q("17.3 mm")),
])
sketch18.setExpression("Constraints[9]", "Params.sketch18_width")
pad10 = doc.addObject("PartDesign::Pad", "Pad009")
body18.addObject(pad10)
pad10.Profile = sketch18
pad10.setExpression("Length", "Params.pad10_length")
body19 = doc.addObject("PartDesign::Body", "Body018")

sketch19 = doc.addObject("Sketcher::SketchObject", "Sketch018")
body19.addObject(sketch19)
sketch19.AttachmentSupport = (doc.getObject("XY_Plane018"), [""])
sketch19.MapMode = "FlatFace"
sketch19.AttachmentOffset = App.Placement(Vector(0, 0, 4.6), App.Rotation())
add_polygon(sketch19, [(3, 37), (3, 31), (9, 31), (9, 37)])
sketch19.addConstraint([
    Sketcher.Constraint("Vertical", 0),
    Sketcher.Constraint("Horizontal", 1),
    Sketcher.Constraint("Vertical", 2),
    Sketcher.Constraint("Horizontal", 3),
    Sketcher.Constraint("Equal", 3, 0),
    Sketcher.Constraint("DistanceX", 1, 1, 1, 2, Q("5.7 mm")),
    Sketcher.Constraint("DistanceX", -1, 1, 0, 2, Q("3.15 mm")),
    Sketcher.Constraint("DistanceY", -1, 1, 0, 2, Q("31.15 mm")),
])
sketch19.setExpression("Constraints[9]", "Params.sketch19_width")
pad11 = doc.addObject("PartDesign::Pad", "Pad010")
body19.addObject(pad11)
pad11.Profile = sketch19
pad11.setExpression("Length", "Params.pad11_length")
body20 = doc.addObject("PartDesign::Body", "Body019")

sketch20 = doc.addObject("Sketcher::SketchObject", "Sketch019")
body20.addObject(sketch20)
sketch20.AttachmentSupport = (doc.getObject("XY_Plane019"), [""])
sketch20.MapMode = "FlatFace"
sketch20.AttachmentOffset = App.Placement(Vector(0, 0, 4.6), App.Rotation())
add_polygon(sketch20, [(31, 37), (31, 31), (37, 31), (37, 37)])
sketch20.addConstraint([
    Sketcher.Constraint("Vertical", 0),
    Sketcher.Constraint("Horizontal", 1),
    Sketcher.Constraint("Vertical", 2),
    Sketcher.Constraint("Horizontal", 3),
    Sketcher.Constraint("Equal", 3, 0),
    Sketcher.Constraint("DistanceX", 1, 1, 1, 2, Q("5.5 mm")),
    Sketcher.Constraint("DistanceX", -1, 1, 0, 2, Q("31.25 mm")),
    Sketcher.Constraint("DistanceY", -1, 1, 0, 2, Q("31.25 mm")),
])
sketch20.setExpression("Constraints[9]", "Params.sketch20_width")
pad12 = doc.addObject("PartDesign::Pad", "Pad011")
body20.addObject(pad12)
pad12.Profile = sketch20
pad12.setExpression("Length", "Params.pad12_length")
body21 = doc.addObject("PartDesign::Body", "Body020")

sketch21 = doc.addObject("Sketcher::SketchObject", "Sketch020")
body21.addObject(sketch21)
sketch21.AttachmentSupport = (doc.getObject("XY_Plane020"), [""])
sketch21.MapMode = "FlatFace"
sketch21.AttachmentOffset = App.Placement(Vector(0, 0, 4.6), App.Rotation())
add_polygon(sketch21, [(3, 9), (3, -1), (9, -1), (9, 9)])
sketch21.addConstraint([
    Sketcher.Constraint("Vertical", 0),
    Sketcher.Constraint("Horizontal", 1),
    Sketcher.Constraint("Vertical", 2),
    Sketcher.Constraint("Horizontal", 3),
    Sketcher.Constraint("DistanceY", 0, 2, 0, 1, Q("10 mm")),
    Sketcher.Constraint("DistanceX", 1, 1, 1, 2, Q("5.6 mm")),
    Sketcher.Constraint("DistanceX", -1, 1, 0, 2, Q("3.2 mm")),
    Sketcher.Constraint("DistanceY", 0, 2, -1, 1, Q("0.85 mm")),
])
sketch21.setExpression("Constraints[8]", "Params.sketch21_height")
sketch21.setExpression("Constraints[9]", "Params.sketch21_width")
pad13 = doc.addObject("PartDesign::Pad", "Pad012")
body21.addObject(pad13)
pad13.Profile = sketch21
pad13.setExpression("Length", "Params.pad13_length")
body22 = doc.addObject("PartDesign::Body", "Body021")

sketch22 = doc.addObject("Sketcher::SketchObject", "Sketch021")
body22.addObject(sketch22)
sketch22.AttachmentSupport = (doc.getObject("XY_Plane021"), [""])
sketch22.MapMode = "FlatFace"
sketch22.AttachmentOffset = App.Placement(Vector(0, 0, 4.6), App.Rotation())
add_polygon(sketch22, [(17, 37), (17, 31), (23, 31), (23, 37)])
sketch22.addConstraint([
    Sketcher.Constraint("Vertical", 0),
    Sketcher.Constraint("Horizontal", 1),
    Sketcher.Constraint("Vertical", 2),
    Sketcher.Constraint("Horizontal", 3),
    Sketcher.Constraint("Equal", 3, 0),
    Sketcher.Constraint("DistanceX", 1, 1, 1, 2, Q("5.6 mm")),
    Sketcher.Constraint("DistanceX", -1, 1, 0, 2, Q("17.2 mm")),
    Sketcher.Constraint("DistanceY", -1, 1, 0, 2, Q("31.2 mm")),
])
sketch22.setExpression("Constraints[9]", "Params.sketch22_width")
pad14 = doc.addObject("PartDesign::Pad", "Pad013")
body22.addObject(pad14)
pad14.Profile = sketch22
pad14.setExpression("Length", "Params.pad14_length")
body23 = doc.addObject("PartDesign::Body", "Body022")

sketch23 = doc.addObject("Sketcher::SketchObject", "Sketch022")
body23.addObject(sketch23)
sketch23.AttachmentSupport = (doc.getObject("XY_Plane022"), [""])
sketch23.MapMode = "FlatFace"
sketch23.AttachmentOffset = App.Placement(Vector(0, 0, 4.6), App.Rotation())
add_polygon(sketch23, [(17, 9), (17, -1), (23, -1), (23, 9)])
sketch23.addConstraint([
    Sketcher.Constraint("Vertical", 0),
    Sketcher.Constraint("Horizontal", 1),
    Sketcher.Constraint("Vertical", 2),
    Sketcher.Constraint("Horizontal", 3),
    Sketcher.Constraint("DistanceY", 0, 2, 0, 1, Q("10 mm")),
    Sketcher.Constraint("DistanceX", 1, 1, 1, 2, Q("5.6 mm")),
    Sketcher.Constraint("DistanceX", -1, 1, 0, 2, Q("17.2 mm")),
    Sketcher.Constraint("DistanceY", 0, 2, -1, 1, Q("0.85 mm")),
])
sketch23.setExpression("Constraints[8]", "Params.sketch23_height")
sketch23.setExpression("Constraints[9]", "Params.sketch23_width")
pad15 = doc.addObject("PartDesign::Pad", "Pad014")
body23.addObject(pad15)
pad15.Profile = sketch23
pad15.setExpression("Length", "Params.pad15_length")
body24 = doc.addObject("PartDesign::Body", "Body023")
body24.AllowCompound = True

sketch24 = doc.addObject("Sketcher::SketchObject", "Sketch023")
body24.addObject(sketch24)
sketch24.AttachmentSupport = (doc.getObject("XY_Plane023"), [""])
sketch24.MapMode = "FlatFace"
sketch24.AttachmentOffset = App.Placement(Vector(0, 0, 4.6), App.Rotation())
add_polygon(sketch24, [(31, 9), (31, -1), (37, -1), (37, 9)])
sketch24.addConstraint([
    Sketcher.Constraint("Vertical", 0),
    Sketcher.Constraint("Horizontal", 1),
    Sketcher.Constraint("Vertical", 2),
    Sketcher.Constraint("Horizontal", 3),
    Sketcher.Constraint("DistanceY", 0, 2, 0, 1, Q("10 mm")),
    Sketcher.Constraint("DistanceX", 1, 1, 1, 2, Q("5.6 mm")),
    Sketcher.Constraint("DistanceX", -1, 1, 0, 2, Q("31.2 mm")),
    Sketcher.Constraint("DistanceY", 0, 2, -1, 1, Q("0.85 mm")),
])
sketch24.setExpression("Constraints[8]", "Params.sketch24_height")
sketch24.setExpression("Constraints[9]", "Params.sketch24_width")
pad16 = doc.addObject("PartDesign::Pad", "Pad015")
body24.addObject(pad16)
pad16.Profile = sketch24
pad16.setExpression("Length", "Params.pad16_length")
doc.recompute()

boolean15 = doc.addObject("PartDesign::Boolean", "Boolean014")
body24.addObject(boolean15)
boolean15.Type = "Fuse"
boolean15.addObjects([body17])
doc.recompute()

boolean16 = doc.addObject("PartDesign::Boolean", "Boolean015")
body24.addObject(boolean16)
boolean16.Type = "Fuse"
boolean16.addObjects([body18])
doc.recompute()

boolean17 = doc.addObject("PartDesign::Boolean", "Boolean016")
body24.addObject(boolean17)
boolean17.Type = "Fuse"
boolean17.addObjects([body19])
doc.recompute()

boolean18 = doc.addObject("PartDesign::Boolean", "Boolean017")
body24.addObject(boolean18)
boolean18.Type = "Fuse"
boolean18.addObjects([body20])
doc.recompute()

boolean19 = doc.addObject("PartDesign::Boolean", "Boolean018")
body24.addObject(boolean19)
boolean19.Type = "Fuse"
boolean19.addObjects([body21])
doc.recompute()

boolean20 = doc.addObject("PartDesign::Boolean", "Boolean019")
body24.addObject(boolean20)
boolean20.Type = "Fuse"
boolean20.addObjects([body22])
doc.recompute()

boolean21 = doc.addObject("PartDesign::Boolean", "Boolean020")
body24.addObject(boolean21)
boolean21.Type = "Fuse"
boolean21.addObjects([body23])
body25 = doc.addObject("PartDesign::Body", "Body024")

sketch25 = doc.addObject("Sketcher::SketchObject", "Sketch024")
body25.addObject(sketch25)
sketch25.AttachmentSupport = (doc.getObject("XY_Plane024"), [""])
sketch25.MapMode = "FlatFace"
sketch25.AttachmentOffset = App.Placement(Vector(0, 0, 3.7), App.Rotation())
add_polygon(sketch25, [(0, 40), (0, 0), (40, 0), (40, 40)])
sketch25.addConstraint([
    Sketcher.Constraint("Vertical", 0),
    Sketcher.Constraint("Horizontal", 1),
    Sketcher.Constraint("Vertical", 2),
    Sketcher.Constraint("Horizontal", 3),
    Sketcher.Constraint("Coincident", 0, 2, -1, 1),
    Sketcher.Constraint("Equal", 3, 0),
    Sketcher.Constraint("DistanceX", 1, 1, 1, 2, Q("40 mm")),
])
sketch25.setExpression("Constraints[10]", "Params.sketch25_width")
pad17 = doc.addObject("PartDesign::Pad", "Pad016")
body25.addObject(pad17)
pad17.Profile = sketch25
pad17.setExpression("Length", "Params.pad17_length")
doc.recompute()

boolean22 = doc.addObject("PartDesign::Boolean", "Boolean021")
body25.addObject(boolean22)
boolean22.Type = "Cut"
boolean22.addObjects([body24])
doc.recompute()

boolean23 = doc.addObject("PartDesign::Boolean", "Boolean022")
body25.addObject(boolean23)
boolean23.Type = "Cut"
boolean23.addObjects([body16])
doc.recompute()

boolean24 = doc.addObject("PartDesign::Boolean", "Boolean023")
body25.addObject(boolean24)
boolean24.Type = "Cut"
boolean24.addObjects([body8])

doc.recompute()
